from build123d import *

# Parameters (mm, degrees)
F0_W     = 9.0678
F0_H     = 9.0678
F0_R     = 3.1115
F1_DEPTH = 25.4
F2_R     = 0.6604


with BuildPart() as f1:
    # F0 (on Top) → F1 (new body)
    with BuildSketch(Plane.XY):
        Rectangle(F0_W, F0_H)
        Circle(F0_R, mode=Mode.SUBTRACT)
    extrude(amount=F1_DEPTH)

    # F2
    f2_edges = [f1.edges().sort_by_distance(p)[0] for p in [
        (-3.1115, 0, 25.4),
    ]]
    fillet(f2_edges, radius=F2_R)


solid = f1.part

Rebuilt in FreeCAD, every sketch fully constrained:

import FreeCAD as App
import Part
import Sketcher
Q = App.Units.Quantity


def edges_at(feature, points):
    """Names of the edges that pass closest to the given points."""
    edges = feature.Shape.Edges
    near = lambda p: min(range(len(edges)), key=lambda i: edges[i].distToShape(Part.Vertex(*p))[0])
    return sorted({f"Edge{near(p) + 1}" for p in points})


def add_polygon(sketch, points):
    """Adds a closed chain of lines whose ends are joined by coincident constraints."""
    first, n = sketch.GeometryCount, len(points)
    for a, b in zip(points, points[1:] + points[:1]):
        sketch.addGeometry(Part.LineSegment(App.Vector(*a, 0), App.Vector(*b, 0)), False)
    for i in range(n):
        sketch.addConstraint(Sketcher.Constraint("Coincident", first + i, 2, first + (i + 1) % n, 1))

doc = App.newDocument("Part")
params = doc.addObject("Spreadsheet::Sheet", "Params")
for row, (alias, value) in enumerate([
    ("sketch1_diameter", "0.245 in"),
    ("sketch1_width", "0.357 in"),
    ("pad1_length", "1 in"),
    ("fillet_radius", "0.026 in"),
], start=1):
    params.set(f"A{row}", alias)
    params.set(f"B{row}", "=" + value)
    params.setAlias(f"B{row}", alias)

body = doc.addObject("PartDesign::Body", "Body")

sketch1 = doc.addObject("Sketcher::SketchObject", "Sketch")
body.addObject(sketch1)
sketch1.AttachmentSupport = (doc.XY_Plane, [""])
sketch1.MapMode = "FlatFace"
add_polygon(sketch1, [(-4.5, 4.5), (-4.5, -4.5), (4.5, -4.5), (4.5, 4.5)])
sketch1.addGeometry(Part.Circle(App.Vector(0, 0, 0), App.Vector(0, 0, 1), 3.1), False)
sketch1.addConstraint([
    Sketcher.Constraint("Vertical", 0),
    Sketcher.Constraint("Horizontal", 1),
    Sketcher.Constraint("Vertical", 2),
    Sketcher.Constraint("Horizontal", 3),
    Sketcher.Constraint("Coincident", 4, 3, -1, 1),
    Sketcher.Constraint("Symmetric", 0, 2, 2, 2, -1, 1),
    Sketcher.Constraint("Equal", 3, 0),
    Sketcher.Constraint("Diameter", 4, Q("0.245 in")),
    Sketcher.Constraint("DistanceX", 1, 1, 1, 2, Q("0.357 in")),
])
sketch1.setExpression("Constraints[11]", "Params.sketch1_diameter")
sketch1.setExpression("Constraints[12]", "Params.sketch1_width")
pad1 = doc.addObject("PartDesign::Pad", "Pad")
body.addObject(pad1)
pad1.Profile = sketch1
pad1.setExpression("Length", "Params.pad1_length")
doc.recompute()

fillet = doc.addObject("PartDesign::Fillet", "Fillet")
body.addObject(fillet)
fillet.Base = (pad1, edges_at(pad1, [(-3.111, 0, 25.4)]))
fillet.setExpression("Radius", "Params.fillet_radius")

doc.recompute()
